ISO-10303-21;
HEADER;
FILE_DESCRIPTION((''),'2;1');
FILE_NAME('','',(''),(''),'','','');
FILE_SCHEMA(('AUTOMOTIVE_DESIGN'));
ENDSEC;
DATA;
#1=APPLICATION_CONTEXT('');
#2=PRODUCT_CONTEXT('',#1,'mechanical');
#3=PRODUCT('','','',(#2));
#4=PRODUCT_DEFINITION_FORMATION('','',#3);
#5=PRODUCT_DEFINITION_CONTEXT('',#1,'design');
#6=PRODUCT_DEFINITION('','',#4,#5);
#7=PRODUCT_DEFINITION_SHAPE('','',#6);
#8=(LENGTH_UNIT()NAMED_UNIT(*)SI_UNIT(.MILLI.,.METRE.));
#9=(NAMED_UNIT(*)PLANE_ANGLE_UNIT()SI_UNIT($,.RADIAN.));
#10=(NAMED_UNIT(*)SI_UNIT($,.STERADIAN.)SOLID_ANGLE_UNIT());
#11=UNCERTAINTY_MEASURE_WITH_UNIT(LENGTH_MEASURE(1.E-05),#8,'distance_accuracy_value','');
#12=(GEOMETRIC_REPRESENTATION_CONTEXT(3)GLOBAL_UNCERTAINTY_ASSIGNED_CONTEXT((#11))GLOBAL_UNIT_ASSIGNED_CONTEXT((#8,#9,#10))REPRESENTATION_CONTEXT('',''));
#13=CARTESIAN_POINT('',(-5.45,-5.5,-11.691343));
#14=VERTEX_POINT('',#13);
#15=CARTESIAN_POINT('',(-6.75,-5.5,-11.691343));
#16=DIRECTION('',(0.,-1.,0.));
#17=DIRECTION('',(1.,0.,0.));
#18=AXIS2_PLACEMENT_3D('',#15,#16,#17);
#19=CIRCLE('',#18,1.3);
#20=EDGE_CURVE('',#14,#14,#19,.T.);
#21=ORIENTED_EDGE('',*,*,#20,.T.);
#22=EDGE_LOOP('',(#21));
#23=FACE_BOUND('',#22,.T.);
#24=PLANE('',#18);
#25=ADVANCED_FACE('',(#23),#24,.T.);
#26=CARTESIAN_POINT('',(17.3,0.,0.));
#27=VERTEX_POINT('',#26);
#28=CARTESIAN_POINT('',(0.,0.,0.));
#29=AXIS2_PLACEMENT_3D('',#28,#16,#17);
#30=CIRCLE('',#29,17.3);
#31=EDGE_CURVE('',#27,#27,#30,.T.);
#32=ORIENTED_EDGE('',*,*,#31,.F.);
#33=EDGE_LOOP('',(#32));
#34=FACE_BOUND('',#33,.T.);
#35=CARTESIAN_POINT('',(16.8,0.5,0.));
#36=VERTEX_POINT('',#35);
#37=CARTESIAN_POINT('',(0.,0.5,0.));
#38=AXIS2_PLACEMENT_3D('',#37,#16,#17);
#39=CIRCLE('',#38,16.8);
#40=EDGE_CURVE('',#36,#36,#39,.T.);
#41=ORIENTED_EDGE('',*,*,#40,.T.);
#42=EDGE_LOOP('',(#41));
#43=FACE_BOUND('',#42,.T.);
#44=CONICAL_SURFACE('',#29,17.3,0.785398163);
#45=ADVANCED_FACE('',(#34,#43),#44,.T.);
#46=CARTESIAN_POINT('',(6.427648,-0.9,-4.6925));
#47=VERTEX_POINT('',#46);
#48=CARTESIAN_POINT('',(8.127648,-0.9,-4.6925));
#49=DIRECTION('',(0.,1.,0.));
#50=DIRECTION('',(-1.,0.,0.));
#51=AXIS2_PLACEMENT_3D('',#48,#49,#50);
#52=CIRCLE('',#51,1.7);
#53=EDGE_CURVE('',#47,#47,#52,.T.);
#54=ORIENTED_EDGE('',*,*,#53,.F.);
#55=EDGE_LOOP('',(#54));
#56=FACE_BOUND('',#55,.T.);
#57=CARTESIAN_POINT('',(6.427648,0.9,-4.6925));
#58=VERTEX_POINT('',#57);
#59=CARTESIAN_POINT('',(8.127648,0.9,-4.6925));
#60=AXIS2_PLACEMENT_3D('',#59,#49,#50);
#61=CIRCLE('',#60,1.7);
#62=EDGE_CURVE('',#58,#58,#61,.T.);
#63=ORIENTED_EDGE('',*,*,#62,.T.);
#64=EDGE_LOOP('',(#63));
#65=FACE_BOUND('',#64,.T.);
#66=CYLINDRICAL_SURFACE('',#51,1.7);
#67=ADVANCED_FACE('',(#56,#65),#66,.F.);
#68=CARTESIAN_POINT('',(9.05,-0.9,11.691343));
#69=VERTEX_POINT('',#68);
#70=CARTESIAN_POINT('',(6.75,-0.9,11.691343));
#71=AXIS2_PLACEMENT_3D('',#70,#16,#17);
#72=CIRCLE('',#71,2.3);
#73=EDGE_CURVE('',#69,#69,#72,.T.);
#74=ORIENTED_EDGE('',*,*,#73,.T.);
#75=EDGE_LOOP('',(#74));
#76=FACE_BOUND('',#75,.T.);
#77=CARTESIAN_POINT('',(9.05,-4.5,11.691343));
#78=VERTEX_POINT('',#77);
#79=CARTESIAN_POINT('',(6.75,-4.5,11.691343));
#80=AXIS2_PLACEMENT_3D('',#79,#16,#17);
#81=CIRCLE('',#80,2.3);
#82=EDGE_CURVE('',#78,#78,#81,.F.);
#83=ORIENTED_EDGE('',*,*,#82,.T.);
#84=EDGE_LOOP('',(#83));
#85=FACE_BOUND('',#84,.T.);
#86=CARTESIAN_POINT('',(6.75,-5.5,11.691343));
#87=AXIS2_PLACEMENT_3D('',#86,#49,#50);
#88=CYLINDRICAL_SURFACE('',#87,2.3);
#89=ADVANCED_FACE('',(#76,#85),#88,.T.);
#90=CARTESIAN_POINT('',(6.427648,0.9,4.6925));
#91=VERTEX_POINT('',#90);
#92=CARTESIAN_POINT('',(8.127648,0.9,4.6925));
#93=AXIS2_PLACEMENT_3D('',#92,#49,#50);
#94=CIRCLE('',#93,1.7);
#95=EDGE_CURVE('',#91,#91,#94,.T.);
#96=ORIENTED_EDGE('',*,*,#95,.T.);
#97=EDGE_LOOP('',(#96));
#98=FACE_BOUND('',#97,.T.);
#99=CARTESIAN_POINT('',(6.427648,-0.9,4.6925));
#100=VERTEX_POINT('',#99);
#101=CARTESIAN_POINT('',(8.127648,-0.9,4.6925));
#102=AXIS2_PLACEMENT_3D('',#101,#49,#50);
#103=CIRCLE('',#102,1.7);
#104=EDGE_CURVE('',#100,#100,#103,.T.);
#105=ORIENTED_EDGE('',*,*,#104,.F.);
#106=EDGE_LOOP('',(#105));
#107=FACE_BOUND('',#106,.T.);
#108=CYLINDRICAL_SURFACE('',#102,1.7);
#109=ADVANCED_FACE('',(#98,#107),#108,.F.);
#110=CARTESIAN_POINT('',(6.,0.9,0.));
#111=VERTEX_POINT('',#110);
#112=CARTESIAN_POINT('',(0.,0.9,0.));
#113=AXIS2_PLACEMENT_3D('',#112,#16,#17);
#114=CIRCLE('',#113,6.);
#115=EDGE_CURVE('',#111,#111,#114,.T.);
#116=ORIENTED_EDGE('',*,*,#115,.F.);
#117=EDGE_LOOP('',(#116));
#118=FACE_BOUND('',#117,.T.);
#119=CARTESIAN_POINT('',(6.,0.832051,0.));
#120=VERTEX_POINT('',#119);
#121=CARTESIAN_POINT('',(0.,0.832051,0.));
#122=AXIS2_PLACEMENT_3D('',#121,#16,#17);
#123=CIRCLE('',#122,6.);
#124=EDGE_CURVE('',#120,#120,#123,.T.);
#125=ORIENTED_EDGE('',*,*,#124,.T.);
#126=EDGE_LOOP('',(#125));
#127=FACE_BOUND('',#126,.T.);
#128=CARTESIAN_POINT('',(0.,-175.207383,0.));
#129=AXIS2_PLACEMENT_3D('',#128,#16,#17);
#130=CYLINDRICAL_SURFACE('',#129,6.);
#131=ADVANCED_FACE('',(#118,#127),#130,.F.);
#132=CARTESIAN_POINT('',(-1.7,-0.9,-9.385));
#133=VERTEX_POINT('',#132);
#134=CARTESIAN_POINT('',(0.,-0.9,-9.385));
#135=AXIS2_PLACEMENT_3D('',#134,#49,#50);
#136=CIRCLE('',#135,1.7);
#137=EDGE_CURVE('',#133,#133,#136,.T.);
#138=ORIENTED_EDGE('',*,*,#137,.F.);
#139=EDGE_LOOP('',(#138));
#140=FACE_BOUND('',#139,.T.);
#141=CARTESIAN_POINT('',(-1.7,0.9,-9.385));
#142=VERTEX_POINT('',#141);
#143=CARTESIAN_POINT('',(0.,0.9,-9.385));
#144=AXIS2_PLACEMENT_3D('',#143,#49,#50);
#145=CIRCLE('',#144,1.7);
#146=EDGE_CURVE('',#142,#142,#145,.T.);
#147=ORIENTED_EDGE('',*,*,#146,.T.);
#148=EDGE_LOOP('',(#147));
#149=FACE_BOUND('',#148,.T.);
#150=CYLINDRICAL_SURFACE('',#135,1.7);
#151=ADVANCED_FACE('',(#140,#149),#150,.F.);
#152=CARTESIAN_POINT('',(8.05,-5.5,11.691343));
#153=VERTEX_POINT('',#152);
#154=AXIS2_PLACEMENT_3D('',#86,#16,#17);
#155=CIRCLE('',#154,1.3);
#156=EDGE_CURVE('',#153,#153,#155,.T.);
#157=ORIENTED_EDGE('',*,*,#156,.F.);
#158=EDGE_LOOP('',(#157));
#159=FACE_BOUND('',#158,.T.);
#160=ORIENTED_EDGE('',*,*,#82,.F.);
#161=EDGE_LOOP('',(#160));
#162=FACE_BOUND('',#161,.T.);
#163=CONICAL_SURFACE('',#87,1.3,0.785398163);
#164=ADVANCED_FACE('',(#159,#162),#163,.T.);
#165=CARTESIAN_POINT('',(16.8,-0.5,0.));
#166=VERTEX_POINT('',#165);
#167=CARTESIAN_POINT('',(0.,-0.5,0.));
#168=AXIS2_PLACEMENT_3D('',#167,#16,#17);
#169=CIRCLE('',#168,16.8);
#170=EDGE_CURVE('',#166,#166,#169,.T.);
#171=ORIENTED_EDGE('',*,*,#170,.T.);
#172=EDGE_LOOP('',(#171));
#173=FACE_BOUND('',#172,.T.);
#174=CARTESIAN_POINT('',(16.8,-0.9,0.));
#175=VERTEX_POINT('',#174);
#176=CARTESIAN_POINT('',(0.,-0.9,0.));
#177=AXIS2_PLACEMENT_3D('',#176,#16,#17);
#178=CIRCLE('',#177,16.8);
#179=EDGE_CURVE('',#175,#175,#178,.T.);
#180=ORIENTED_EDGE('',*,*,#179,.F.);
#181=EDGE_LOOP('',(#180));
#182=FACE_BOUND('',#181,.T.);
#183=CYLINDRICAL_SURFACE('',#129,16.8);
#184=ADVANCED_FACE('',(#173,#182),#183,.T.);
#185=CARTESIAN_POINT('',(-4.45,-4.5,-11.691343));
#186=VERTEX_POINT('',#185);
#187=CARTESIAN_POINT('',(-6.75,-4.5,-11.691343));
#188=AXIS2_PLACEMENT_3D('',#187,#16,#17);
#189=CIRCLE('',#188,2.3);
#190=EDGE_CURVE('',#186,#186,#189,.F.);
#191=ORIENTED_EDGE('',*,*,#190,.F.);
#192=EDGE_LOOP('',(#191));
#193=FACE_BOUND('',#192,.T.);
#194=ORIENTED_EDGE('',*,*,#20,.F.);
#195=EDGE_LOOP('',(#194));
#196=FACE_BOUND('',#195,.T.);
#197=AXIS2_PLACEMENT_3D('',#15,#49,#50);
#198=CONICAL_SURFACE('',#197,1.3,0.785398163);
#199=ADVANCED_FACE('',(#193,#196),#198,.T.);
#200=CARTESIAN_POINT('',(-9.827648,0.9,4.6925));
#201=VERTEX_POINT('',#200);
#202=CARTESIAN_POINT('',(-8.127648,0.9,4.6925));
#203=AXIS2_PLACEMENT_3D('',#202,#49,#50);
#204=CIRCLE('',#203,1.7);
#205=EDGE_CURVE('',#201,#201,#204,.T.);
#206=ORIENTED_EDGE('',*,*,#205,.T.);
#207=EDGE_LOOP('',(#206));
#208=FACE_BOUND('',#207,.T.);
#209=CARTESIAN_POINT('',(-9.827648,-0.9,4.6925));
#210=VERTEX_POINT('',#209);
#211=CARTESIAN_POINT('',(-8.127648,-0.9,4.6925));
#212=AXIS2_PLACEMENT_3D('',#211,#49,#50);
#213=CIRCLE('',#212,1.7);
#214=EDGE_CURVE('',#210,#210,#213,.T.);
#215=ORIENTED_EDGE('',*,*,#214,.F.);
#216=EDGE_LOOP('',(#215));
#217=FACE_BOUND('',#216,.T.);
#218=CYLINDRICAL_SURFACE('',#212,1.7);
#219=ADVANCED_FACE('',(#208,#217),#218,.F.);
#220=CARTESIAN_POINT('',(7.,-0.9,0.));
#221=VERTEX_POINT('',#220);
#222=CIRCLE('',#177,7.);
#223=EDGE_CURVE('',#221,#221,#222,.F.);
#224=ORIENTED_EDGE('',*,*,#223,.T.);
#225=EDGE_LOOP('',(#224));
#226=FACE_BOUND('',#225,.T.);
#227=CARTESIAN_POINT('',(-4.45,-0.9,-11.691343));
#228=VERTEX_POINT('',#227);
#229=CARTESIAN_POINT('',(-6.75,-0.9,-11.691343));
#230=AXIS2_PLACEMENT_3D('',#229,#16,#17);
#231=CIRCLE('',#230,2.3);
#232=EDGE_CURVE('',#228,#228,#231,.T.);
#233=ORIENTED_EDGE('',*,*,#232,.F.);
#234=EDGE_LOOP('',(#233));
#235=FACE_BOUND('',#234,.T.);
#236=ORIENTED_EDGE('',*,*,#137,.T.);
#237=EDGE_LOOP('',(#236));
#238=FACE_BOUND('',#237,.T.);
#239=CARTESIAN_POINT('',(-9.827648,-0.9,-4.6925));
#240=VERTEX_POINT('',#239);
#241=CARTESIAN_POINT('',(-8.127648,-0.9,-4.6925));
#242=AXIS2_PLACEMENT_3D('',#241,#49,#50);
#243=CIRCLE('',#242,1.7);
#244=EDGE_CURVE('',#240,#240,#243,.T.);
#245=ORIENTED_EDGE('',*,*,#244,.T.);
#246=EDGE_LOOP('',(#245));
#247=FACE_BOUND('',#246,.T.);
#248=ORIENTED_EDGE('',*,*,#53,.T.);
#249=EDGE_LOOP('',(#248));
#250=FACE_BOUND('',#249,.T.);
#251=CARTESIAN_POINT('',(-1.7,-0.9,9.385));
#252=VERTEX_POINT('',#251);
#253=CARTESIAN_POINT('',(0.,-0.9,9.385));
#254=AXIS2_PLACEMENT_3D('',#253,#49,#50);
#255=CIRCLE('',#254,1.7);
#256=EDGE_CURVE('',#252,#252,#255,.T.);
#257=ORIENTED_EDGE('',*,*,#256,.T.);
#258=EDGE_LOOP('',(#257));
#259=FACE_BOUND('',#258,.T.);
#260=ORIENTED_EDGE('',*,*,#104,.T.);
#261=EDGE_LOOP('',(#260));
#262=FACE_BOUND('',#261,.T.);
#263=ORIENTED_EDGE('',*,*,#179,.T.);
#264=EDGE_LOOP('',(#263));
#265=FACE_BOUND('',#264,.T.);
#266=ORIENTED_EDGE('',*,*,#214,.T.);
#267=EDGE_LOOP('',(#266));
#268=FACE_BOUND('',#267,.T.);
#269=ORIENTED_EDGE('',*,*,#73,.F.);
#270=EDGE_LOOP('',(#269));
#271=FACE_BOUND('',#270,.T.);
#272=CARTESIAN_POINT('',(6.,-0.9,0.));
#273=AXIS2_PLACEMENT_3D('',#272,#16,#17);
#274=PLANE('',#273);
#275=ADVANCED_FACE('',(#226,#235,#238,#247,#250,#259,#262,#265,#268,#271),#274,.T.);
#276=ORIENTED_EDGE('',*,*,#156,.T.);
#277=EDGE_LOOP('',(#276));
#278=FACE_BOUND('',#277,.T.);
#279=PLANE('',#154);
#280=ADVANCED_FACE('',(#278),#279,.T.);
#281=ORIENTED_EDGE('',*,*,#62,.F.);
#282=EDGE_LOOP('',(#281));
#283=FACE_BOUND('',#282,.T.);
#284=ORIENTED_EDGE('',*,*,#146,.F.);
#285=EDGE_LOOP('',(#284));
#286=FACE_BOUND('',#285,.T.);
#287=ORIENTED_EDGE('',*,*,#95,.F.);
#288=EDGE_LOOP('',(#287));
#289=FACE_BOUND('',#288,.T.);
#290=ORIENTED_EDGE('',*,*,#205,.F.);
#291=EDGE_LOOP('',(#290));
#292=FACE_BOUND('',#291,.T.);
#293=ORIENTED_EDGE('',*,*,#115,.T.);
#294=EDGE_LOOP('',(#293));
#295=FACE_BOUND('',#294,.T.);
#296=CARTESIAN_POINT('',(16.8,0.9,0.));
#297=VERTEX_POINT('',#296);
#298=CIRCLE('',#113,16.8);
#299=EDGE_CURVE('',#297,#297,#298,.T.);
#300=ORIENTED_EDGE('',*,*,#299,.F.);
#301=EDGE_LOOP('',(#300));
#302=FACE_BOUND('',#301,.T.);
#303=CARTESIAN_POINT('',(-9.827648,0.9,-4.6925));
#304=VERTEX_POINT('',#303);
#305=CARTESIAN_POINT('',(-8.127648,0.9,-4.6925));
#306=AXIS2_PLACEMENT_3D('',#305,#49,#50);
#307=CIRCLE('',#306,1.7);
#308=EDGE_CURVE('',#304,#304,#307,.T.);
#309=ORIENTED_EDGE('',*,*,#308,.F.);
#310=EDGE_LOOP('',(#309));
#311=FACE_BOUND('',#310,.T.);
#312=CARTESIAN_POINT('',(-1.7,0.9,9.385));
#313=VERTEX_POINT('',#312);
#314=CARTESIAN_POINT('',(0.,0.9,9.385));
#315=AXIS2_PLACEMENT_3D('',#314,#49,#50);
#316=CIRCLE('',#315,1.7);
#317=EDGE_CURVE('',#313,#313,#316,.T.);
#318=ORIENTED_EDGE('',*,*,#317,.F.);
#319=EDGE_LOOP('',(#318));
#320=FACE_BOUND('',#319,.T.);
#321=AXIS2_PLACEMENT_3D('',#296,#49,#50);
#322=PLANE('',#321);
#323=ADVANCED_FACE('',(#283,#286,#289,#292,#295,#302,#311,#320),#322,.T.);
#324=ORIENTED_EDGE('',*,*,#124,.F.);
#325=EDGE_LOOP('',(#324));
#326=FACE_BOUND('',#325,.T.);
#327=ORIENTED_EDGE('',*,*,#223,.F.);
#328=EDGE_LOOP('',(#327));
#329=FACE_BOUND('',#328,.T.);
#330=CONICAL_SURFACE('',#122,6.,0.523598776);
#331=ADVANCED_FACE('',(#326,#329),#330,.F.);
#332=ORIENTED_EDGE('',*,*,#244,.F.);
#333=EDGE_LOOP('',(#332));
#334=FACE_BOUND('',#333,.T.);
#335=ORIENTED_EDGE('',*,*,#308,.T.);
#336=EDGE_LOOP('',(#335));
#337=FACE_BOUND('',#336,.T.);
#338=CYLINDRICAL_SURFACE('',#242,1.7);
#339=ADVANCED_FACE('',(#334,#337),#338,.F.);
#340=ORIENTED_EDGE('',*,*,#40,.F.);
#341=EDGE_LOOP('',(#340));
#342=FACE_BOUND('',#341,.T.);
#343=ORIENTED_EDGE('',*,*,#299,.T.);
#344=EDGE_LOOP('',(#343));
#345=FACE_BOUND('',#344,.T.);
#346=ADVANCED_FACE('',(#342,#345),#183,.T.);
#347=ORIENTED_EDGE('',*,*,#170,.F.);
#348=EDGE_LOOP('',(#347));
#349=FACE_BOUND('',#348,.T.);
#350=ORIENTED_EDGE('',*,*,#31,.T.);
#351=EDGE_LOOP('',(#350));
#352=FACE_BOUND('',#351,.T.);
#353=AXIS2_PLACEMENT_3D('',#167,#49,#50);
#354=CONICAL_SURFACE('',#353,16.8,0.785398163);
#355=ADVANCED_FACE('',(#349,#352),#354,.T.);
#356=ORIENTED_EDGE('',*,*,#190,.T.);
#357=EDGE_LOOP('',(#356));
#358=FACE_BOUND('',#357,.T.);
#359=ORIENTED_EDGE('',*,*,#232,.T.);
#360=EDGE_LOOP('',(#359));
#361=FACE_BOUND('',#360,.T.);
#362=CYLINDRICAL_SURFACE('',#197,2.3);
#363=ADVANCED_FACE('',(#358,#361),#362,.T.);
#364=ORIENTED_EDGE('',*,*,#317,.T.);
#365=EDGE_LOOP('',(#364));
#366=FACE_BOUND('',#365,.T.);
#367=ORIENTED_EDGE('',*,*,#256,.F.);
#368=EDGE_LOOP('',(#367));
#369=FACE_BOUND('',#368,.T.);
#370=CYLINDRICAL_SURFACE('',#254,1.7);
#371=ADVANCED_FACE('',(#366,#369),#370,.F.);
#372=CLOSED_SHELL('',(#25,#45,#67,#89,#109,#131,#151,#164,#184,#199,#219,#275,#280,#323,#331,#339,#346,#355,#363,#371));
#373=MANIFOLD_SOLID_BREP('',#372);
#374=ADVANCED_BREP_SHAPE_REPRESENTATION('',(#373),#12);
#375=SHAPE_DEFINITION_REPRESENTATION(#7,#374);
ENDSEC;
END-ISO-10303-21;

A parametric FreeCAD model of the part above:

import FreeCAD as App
import Part
import Sketcher

V = App.Vector
Q = App.Units.Quantity


def edges_at(feature, points):
    """Names of the edges that pass closest to the given points."""
    edges = feature.Shape.Edges
    near = lambda p: min(range(len(edges)), key=lambda i: edges[i].distToShape(Part.Vertex(*p))[0])
    return sorted({f"Edge{near(p) + 1}" for p in points})


def add_polygon(sketch, points):
    """Adds a closed chain of lines whose ends are joined by coincident constraints."""
    first, n = sketch.GeometryCount, len(points)
    for a, b in zip(points, points[1:] + points[:1]):
        sketch.addGeometry(Part.LineSegment(App.Vector(*a, 0), App.Vector(*b, 0)), False)
    for i in range(n):
        sketch.addConstraint(Sketcher.Constraint("Coincident", first + i, 2, first + (i + 1) % n, 1))

doc = App.newDocument("Part")
body = doc.addObject("PartDesign::Body", "Body")

# Sketch on XY plane
sketch1 = doc.addObject("Sketcher::SketchObject", "Sketch")
body.addObject(sketch1)
sketch1.AttachmentSupport = (doc.XY_Plane, [""])
sketch1.MapMode = "FlatFace"
add_polygon(sketch1, [(6, -0.9), (16.8, -0.9), (16.8, -0.5), (17.3, 0), (16.8, 0.5), (16.8, 0.9), (6, 0.9)])  # lines 0-6
sketch1.addConstraint(Sketcher.Constraint("Horizontal", 0))
sketch1.addConstraint(Sketcher.Constraint("Vertical", 1))
sketch1.addConstraint(Sketcher.Constraint("Vertical", 4))
sketch1.addConstraint(Sketcher.Constraint("Horizontal", 5))
sketch1.addConstraint(Sketcher.Constraint("Vertical", 6))
sketch1.addConstraint(Sketcher.Constraint("Symmetric", 1, 2, 3, 2, -1))
sketch1.addConstraint(Sketcher.Constraint("PointOnObject", 2, 2, -1))
sketch1.addConstraint(Sketcher.Constraint("Perpendicular", 2, 3))
sketch1.addConstraint(Sketcher.Constraint("Equal", 1, 4))
sketch1.addConstraint(Sketcher.Constraint("DistanceX", 0, 1, 0, 2, Q("10.8 mm")))
sketch1.addConstraint(Sketcher.Constraint("DistanceY", 1, 1, 1, 2, Q("0.4 mm")))
sketch1.addConstraint(Sketcher.Constraint("DistanceY", 6, 2, 6, 1, Q("1.8 mm")))
sketch1.addConstraint(Sketcher.Constraint("DistanceX", -1, 1, 5, 2, Q("6 mm")))
revolution = doc.addObject("PartDesign::Revolution", "Revolution")
body.addObject(revolution)
revolution.Profile = sketch1
revolution.ReferenceAxis = (sketch1, ["V_Axis"])
revolution.Angle = 360

# Sketch on XZ plane
sketch2 = doc.addObject("Sketcher::SketchObject", "Sketch001")
body.addObject(sketch2)
sketch2.AttachmentSupport = (doc.XZ_Plane, [""])
sketch2.MapMode = "FlatFace"
sketch2.AttachmentOffset = App.Placement(V(0, 0, -0.9), App.Rotation())
sketch2.addGeometry(Part.Circle(V(0, -9.4, 0), V(0, 0, 1), 1.7), False)
sketch2.addGeometry(Part.Circle(V(8.1, -4.7, 0), V(0, 0, 1), 1.7), False)
sketch2.addGeometry(Part.Circle(V(8.1, 4.7, 0), V(0, 0, 1), 1.7), False)
sketch2.addGeometry(Part.Circle(V(0, 9.4, 0), V(0, 0, 1), 1.7), False)
sketch2.addGeometry(Part.Circle(V(-8.1, 4.7, 0), V(0, 0, 1), 1.7), False)
sketch2.addGeometry(Part.Circle(V(-8.1, -4.7, 0), V(0, 0, 1), 1.7), False)
sketch2.addConstraint(Sketcher.Constraint("Equal", 0, 1))
sketch2.addConstraint(Sketcher.Constraint("Equal", 1, 2))
sketch2.addConstraint(Sketcher.Constraint("Equal", 2, 3))
sketch2.addConstraint(Sketcher.Constraint("Equal", 3, 4))
sketch2.addConstraint(Sketcher.Constraint("Equal", 4, 5))
sketch2.addConstraint(Sketcher.Constraint("Symmetric", 0, 3, 3, 3, -1, 1))
sketch2.addConstraint(Sketcher.Constraint("Symmetric", 1, 3, 4, 3, -1, 1))
sketch2.addConstraint(Sketcher.Constraint("Symmetric", 2, 3, 5, 3, -1, 1))
sketch2.addConstraint(Sketcher.Constraint("Symmetric", 2, 3, 4, 3, -2))
sketch2.addConstraint(Sketcher.Constraint("PointOnObject", 0, 3, -2))
sketch2.addConstraint(Sketcher.Constraint("Diameter", 0, Q("3.4 mm")))
sketch2.addConstraint(Sketcher.Constraint("DistanceY", 0, 3, 3, 3, Q("18.77 mm")))
sketch2.addConstraint(Sketcher.Constraint("DistanceY", 1, 3, 2, 3, Q("9.385 mm")))
sketch2.addConstraint(Sketcher.Constraint("DistanceX", -1, 1, 1, 3, Q("8.127648 mm")))
pocket1 = doc.addObject("PartDesign::Pocket", "Pocket")
body.addObject(pocket1)
pocket1.Profile = sketch2
pocket1.Type = "ThroughAll"
pocket1.Reversed = True

# Sketch on XZ plane
sketch3 = doc.addObject("Sketcher::SketchObject", "Sketch002")
body.addObject(sketch3)
sketch3.AttachmentSupport = (doc.XZ_Plane, [""])
sketch3.MapMode = "FlatFace"
sketch3.AttachmentOffset = App.Placement(V(0, 0, 0.9), App.Rotation())
sketch3.addGeometry(Part.Circle(V(6.8, 11.7, 0), V(0, 0, 1), 2.3), False)
sketch3.addGeometry(Part.Circle(V(-6.8, -11.7, 0), V(0, 0, 1), 2.3), False)
sketch3.addConstraint(Sketcher.Constraint("Equal", 0, 1))
sketch3.addConstraint(Sketcher.Constraint("Symmetric", 0, 3, 1, 3, -1, 1))
sketch3.addConstraint(Sketcher.Constraint("Diameter", 0, Q("4.6 mm")))
sketch3.addConstraint(Sketcher.Constraint("DistanceX", 1, 3, 0, 3, Q("13.5 mm")))
sketch3.addConstraint(Sketcher.Constraint("DistanceY", -1, 1, 0, 3, Q("11.691343 mm")))
pad1 = doc.addObject("PartDesign::Pad", "Pad")
body.addObject(pad1)
pad1.Profile = sketch3
pad1.Length = 4.6
doc.recompute()

chamfer = doc.addObject("PartDesign::Chamfer", "Chamfer")
body.addObject(chamfer)
chamfer.Base = (pad1, edges_at(pad1, [(4.45, -5.5, 11.691), (-9.05, -5.5, -11.691)]))
chamfer.Size = 1
doc.recompute()

chamfer2 = doc.addObject("PartDesign::Chamfer", "Chamfer001")
body.addObject(chamfer2)
chamfer2.Base = (chamfer, edges_at(chamfer, [(-6, -0.9, 0)]))
chamfer2.ChamferType = "Two distances"
chamfer2.Size = 1
chamfer2.Size2 = 1.732051

doc.recompute()
